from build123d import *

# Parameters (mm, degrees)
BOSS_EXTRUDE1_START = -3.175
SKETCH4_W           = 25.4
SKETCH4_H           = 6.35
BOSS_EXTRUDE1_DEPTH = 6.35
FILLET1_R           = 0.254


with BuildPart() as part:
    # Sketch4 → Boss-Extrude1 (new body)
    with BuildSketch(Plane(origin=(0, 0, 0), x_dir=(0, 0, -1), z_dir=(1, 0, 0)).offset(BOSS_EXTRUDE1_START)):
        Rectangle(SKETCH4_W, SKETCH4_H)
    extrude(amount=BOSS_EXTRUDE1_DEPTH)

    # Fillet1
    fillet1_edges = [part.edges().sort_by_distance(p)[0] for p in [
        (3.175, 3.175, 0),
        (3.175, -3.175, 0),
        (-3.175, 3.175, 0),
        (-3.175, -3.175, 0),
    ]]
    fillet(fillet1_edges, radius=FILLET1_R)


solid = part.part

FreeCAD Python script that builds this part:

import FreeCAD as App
import Part
import Sketcher
from FreeCAD import Vector
Q = App.Units.Quantity


def edges_at(feature, points):
    """Names of the edges that pass closest to the given points."""
    edges = feature.Shape.Edges
    near = lambda p: min(range(len(edges)), key=lambda i: edges[i].distToShape(Part.Vertex(*p))[0])
    return sorted({f"Edge{near(p) + 1}" for p in points})


def add_polygon(sketch, points):
    """Adds a closed chain of lines whose ends are joined by coincident constraints."""
    first, n = sketch.GeometryCount, len(points)
    for a, b in zip(points, points[1:] + points[:1]):
        sketch.addGeometry(Part.LineSegment(App.Vector(*a, 0), App.Vector(*b, 0)), False)
    for i in range(n):
        sketch.addConstraint(Sketcher.Constraint("Coincident", first + i, 2, first + (i + 1) % n, 1))

doc = App.newDocument("Part")
body = doc.addObject("PartDesign::Body", "Body")

# Sketch on YZ plane
sketch1 = body.newObject("Sketcher::SketchObject", "Sketch")
sketch1.AttachmentSupport = (doc.getObject("YZ_Plane"), [""])
sketch1.MapMode = "FlatFace"
sketch1.AttachmentOffset = App.Placement(Vector(0, 0, -0.125 * 25.4), App.Rotation())
add_polygon(sketch1, [(3, 13), (-3, 13), (-3, -13), (3, -13)])  # lines 0-3
sketch1.addConstraint(Sketcher.Constraint("Horizontal", 0))
sketch1.addConstraint(Sketcher.Constraint("Vertical", 1))
sketch1.addConstraint(Sketcher.Constraint("Horizontal", 2))
sketch1.addConstraint(Sketcher.Constraint("Vertical", 3))
sketch1.addConstraint(Sketcher.Constraint("Symmetric", 0, 2, 2, 2, -1, 1))
sketch1.addConstraint(Sketcher.Constraint("DistanceY", 1, 2, 1, 1, Q("1 in")))
sketch1.addConstraint(Sketcher.Constraint("DistanceX", 0, 2, 0, 1, Q("0.25 in")))
pad1 = body.newObject("PartDesign::Pad", "Pad")
pad1.Profile = sketch1
pad1.Length = Q("0.25 in")
doc.recompute()

fillet = body.newObject("PartDesign::Fillet", "Fillet")
fillet.Base = (pad1, edges_at(pad1, [
    (3.175, 3.175, 0),
    (3.175, -3.175, 0),
    (-3.175, 3.175, 0),
    (-3.175, -3.175, 0),
]))
fillet.Radius = Q("0.01 in")

doc.recompute()
